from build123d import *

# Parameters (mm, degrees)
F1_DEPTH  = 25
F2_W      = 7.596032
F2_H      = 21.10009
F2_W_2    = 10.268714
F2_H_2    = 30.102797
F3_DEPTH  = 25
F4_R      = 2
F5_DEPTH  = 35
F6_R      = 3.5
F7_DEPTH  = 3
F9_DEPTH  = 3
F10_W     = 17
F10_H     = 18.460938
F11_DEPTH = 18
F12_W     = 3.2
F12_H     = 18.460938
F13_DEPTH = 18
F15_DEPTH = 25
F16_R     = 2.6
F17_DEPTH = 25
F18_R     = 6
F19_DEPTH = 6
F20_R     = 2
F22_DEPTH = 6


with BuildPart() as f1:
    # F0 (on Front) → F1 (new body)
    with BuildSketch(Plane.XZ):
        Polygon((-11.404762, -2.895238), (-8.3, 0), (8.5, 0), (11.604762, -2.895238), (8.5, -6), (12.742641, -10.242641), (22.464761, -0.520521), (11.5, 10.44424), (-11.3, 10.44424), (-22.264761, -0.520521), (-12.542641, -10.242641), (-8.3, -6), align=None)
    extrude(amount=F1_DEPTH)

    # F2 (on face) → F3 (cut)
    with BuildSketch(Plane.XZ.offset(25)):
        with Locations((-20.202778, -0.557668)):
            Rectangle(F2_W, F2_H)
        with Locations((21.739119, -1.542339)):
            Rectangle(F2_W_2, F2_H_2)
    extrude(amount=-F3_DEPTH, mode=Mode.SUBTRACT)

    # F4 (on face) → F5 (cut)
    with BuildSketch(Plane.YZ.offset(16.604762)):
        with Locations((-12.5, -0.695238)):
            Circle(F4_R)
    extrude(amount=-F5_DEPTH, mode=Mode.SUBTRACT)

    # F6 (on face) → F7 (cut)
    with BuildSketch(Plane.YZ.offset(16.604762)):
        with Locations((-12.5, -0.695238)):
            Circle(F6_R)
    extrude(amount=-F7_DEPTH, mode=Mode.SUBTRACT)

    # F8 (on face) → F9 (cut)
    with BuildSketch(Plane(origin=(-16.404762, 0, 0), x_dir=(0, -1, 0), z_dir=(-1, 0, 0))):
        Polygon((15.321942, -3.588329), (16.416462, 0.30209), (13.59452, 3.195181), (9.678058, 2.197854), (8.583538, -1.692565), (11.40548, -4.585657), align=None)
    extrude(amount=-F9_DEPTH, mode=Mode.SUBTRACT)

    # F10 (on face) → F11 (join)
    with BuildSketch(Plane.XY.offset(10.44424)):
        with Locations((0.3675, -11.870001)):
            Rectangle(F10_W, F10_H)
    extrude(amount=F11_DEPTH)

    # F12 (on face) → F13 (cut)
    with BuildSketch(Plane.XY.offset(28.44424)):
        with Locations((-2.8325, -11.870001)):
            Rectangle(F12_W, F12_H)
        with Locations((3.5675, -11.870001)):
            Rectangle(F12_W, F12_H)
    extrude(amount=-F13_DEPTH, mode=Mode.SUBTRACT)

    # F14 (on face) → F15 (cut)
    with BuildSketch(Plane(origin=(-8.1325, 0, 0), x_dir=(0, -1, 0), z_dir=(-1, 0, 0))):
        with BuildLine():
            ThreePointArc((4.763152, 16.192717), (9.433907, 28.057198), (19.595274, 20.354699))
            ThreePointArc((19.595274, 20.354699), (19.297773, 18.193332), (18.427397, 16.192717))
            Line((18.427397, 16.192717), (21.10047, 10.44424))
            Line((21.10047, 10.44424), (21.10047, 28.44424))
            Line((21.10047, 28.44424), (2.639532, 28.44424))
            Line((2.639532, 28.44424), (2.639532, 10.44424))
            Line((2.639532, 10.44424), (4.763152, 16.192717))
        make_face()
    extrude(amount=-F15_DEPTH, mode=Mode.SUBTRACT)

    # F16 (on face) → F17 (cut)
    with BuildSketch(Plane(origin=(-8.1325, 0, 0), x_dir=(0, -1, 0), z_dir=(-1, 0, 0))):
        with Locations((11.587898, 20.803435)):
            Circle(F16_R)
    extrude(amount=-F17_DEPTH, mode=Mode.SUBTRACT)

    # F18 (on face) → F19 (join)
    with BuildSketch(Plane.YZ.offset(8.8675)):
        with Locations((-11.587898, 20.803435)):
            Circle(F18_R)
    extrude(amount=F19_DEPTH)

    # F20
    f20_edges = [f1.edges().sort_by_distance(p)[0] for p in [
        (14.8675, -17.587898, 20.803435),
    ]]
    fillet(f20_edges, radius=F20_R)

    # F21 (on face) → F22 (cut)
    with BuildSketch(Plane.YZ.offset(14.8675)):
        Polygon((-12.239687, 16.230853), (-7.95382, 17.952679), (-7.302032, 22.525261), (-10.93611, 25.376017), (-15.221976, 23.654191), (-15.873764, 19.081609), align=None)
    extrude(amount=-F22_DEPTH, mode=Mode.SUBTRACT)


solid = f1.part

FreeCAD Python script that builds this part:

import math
import FreeCAD as App
import Part
import Sketcher

V = App.Vector
Q = App.Units.Quantity


def edges_at(feature, points):
    """Names of the edges that pass closest to the given points."""
    edges = feature.Shape.Edges
    near = lambda p: min(range(len(edges)), key=lambda i: edges[i].distToShape(Part.Vertex(*p))[0])
    return sorted({f"Edge{near(p) + 1}" for p in points})

doc = App.newDocument("Part")
body = doc.addObject("PartDesign::Body", "Body")

# Sketch on XZ plane
sketch1 = body.newObject("Sketcher::SketchObject", "Sketch")
sketch1.AttachmentSupport = (doc.getObject("XZ_Plane"), [""])
sketch1.MapMode = "FlatFace"
sketch1.addGeometry(Part.LineSegment(V(-11.404762, -2.895238, 0), V(-8.3, 0, 0)), False)
sketch1.addGeometry(Part.LineSegment(V(-8.3, 0, 0), V(8.5, 0, 0)), False)
sketch1.addGeometry(Part.LineSegment(V(8.5, 0, 0), V(11.604762, -2.895238, 0)), False)
sketch1.addGeometry(Part.LineSegment(V(11.604762, -2.895238, 0), V(8.5, -6, 0)), False)
sketch1.addGeometry(Part.LineSegment(V(8.5, -6, 0), V(12.742641, -10.242641, 0)), False)
sketch1.addGeometry(Part.LineSegment(V(12.742641, -10.242641, 0), V(22.464761, -0.520521, 0)), False)
sketch1.addGeometry(Part.LineSegment(V(22.464761, -0.520521, 0), V(11.5, 10.44424, 0)), False)
sketch1.addGeometry(Part.LineSegment(V(11.5, 10.44424, 0), V(-11.3, 10.44424, 0)), False)
sketch1.addGeometry(Part.LineSegment(V(-11.3, 10.44424, 0), V(-22.264761, -0.520521, 0)), False)
sketch1.addGeometry(Part.LineSegment(V(-22.264761, -0.520521, 0), V(-12.542641, -10.242641, 0)), False)
sketch1.addGeometry(Part.LineSegment(V(-12.542641, -10.242641, 0), V(-8.3, -6, 0)), False)
sketch1.addGeometry(Part.LineSegment(V(-8.3, -6, 0), V(-11.404762, -2.895238, 0)), False)
sketch1.addConstraint(Sketcher.Constraint("Coincident", 0, 2, 1, 1))
sketch1.addConstraint(Sketcher.Constraint("Coincident", 1, 2, 2, 1))
sketch1.addConstraint(Sketcher.Constraint("Coincident", 2, 2, 3, 1))
sketch1.addConstraint(Sketcher.Constraint("Coincident", 3, 2, 4, 1))
sketch1.addConstraint(Sketcher.Constraint("Coincident", 4, 2, 5, 1))
sketch1.addConstraint(Sketcher.Constraint("Coincident", 5, 2, 6, 1))
sketch1.addConstraint(Sketcher.Constraint("Coincident", 6, 2, 7, 1))
sketch1.addConstraint(Sketcher.Constraint("Coincident", 7, 2, 8, 1))
sketch1.addConstraint(Sketcher.Constraint("Coincident", 8, 2, 9, 1))
sketch1.addConstraint(Sketcher.Constraint("Coincident", 9, 2, 10, 1))
sketch1.addConstraint(Sketcher.Constraint("Coincident", 10, 2, 11, 1))
sketch1.addConstraint(Sketcher.Constraint("Coincident", 11, 2, 0, 1))
sketch1.addConstraint(Sketcher.Constraint("Horizontal", 1))
sketch1.addConstraint(Sketcher.Constraint("Horizontal", 7))
sketch1.addConstraint(Sketcher.Constraint("PointOnObject", 0, 2, -1))
sketch1.addConstraint(Sketcher.Constraint("Perpendicular", 3, 4))
sketch1.addConstraint(Sketcher.Constraint("Perpendicular", 4, 5))
sketch1.addConstraint(Sketcher.Constraint("Perpendicular", 5, 6))
sketch1.addConstraint(Sketcher.Constraint("Perpendicular", 6, 8))
sketch1.addConstraint(Sketcher.Constraint("Perpendicular", 8, 9))
sketch1.addConstraint(Sketcher.Constraint("Perpendicular", 9, 10))
sketch1.addConstraint(Sketcher.Constraint("Perpendicular", 10, 11))
sketch1.addConstraint(Sketcher.Constraint("Horizontal", 5, 2, 8, 2))
sketch1.addConstraint(Sketcher.Constraint("Horizontal", 4, 2, 9, 2))
sketch1.addConstraint(Sketcher.Constraint("Horizontal", 3, 2, 10, 2))
sketch1.addConstraint(Sketcher.Constraint("Horizontal", 2, 2, 11, 2))
sketch1.addConstraint(Sketcher.Constraint("Vertical", 1, 2, 3, 2))
sketch1.addConstraint(Sketcher.Constraint("Vertical", 0, 2, 10, 2))
sketch1.addConstraint(Sketcher.Constraint("Equal", 0, 2))
sketch1.addConstraint(Sketcher.Constraint("Angle", 0, Q("43.000006 deg")))
sketch1.addConstraint(Sketcher.Constraint("Distance", 4, 6.0))
sketch1.addConstraint(Sketcher.Constraint("DistanceX", 1, 1, 1, 2, 16.8))
sketch1.addConstraint(Sketcher.Constraint("DistanceX", 7, 2, 7, 1, 22.8))
sketch1.addConstraint(Sketcher.Constraint("DistanceY", 3, 2, -1, 1, 6.0))
sketch1.addConstraint(Sketcher.Constraint("DistanceX", 0, 2, -1, 1, 8.3))
sketch1.addConstraint(Sketcher.Constraint("DistanceX", 2, 2, 5, 2, 10.859999))
pad1 = body.newObject("PartDesign::Pad", "Pad")
pad1.Profile = sketch1
pad1.Length = 25

# Sketch on XZ plane
sketch2 = body.newObject("Sketcher::SketchObject", "Sketch001")
sketch2.AttachmentSupport = (doc.getObject("XZ_Plane"), [""])
sketch2.MapMode = "FlatFace"
sketch2.AttachmentOffset = App.Placement(V(0, 0, 25), App.Rotation())
sketch2.addGeometry(Part.LineSegment(V(-24.000794, 9.992377, 0), V(-24.000794, -11.107713, 0)), False)
sketch2.addGeometry(Part.LineSegment(V(-24.000794, -11.107713, 0), V(-16.404762, -11.107713, 0)), False)
sketch2.addGeometry(Part.LineSegment(V(-16.404762, -11.107713, 0), V(-16.404762, 9.992377, 0)), False)
sketch2.addGeometry(Part.LineSegment(V(-16.404762, 9.992377, 0), V(-24.000794, 9.992377, 0)), False)
sketch2.addGeometry(Part.LineSegment(V(16.604762, 13.509059, 0), V(16.604762, -16.593737, 0)), False)
sketch2.addGeometry(Part.LineSegment(V(16.604762, -16.593737, 0), V(26.873476, -16.593737, 0)), False)
sketch2.addGeometry(Part.LineSegment(V(26.873476, -16.593737, 0), V(26.873476, 13.509059, 0)), False)
sketch2.addGeometry(Part.LineSegment(V(26.873476, 13.509059, 0), V(16.604762, 13.509059, 0)), False)
sketch2.addConstraint(Sketcher.Constraint("Coincident", 0, 2, 1, 1))
sketch2.addConstraint(Sketcher.Constraint("Coincident", 1, 2, 2, 1))
sketch2.addConstraint(Sketcher.Constraint("Coincident", 2, 2, 3, 1))
sketch2.addConstraint(Sketcher.Constraint("Coincident", 3, 2, 0, 1))
sketch2.addConstraint(Sketcher.Constraint("Coincident", 4, 2, 5, 1))
sketch2.addConstraint(Sketcher.Constraint("Coincident", 5, 2, 6, 1))
sketch2.addConstraint(Sketcher.Constraint("Coincident", 6, 2, 7, 1))
sketch2.addConstraint(Sketcher.Constraint("Coincident", 7, 2, 4, 1))
sketch2.addConstraint(Sketcher.Constraint("Vertical", 0))
sketch2.addConstraint(Sketcher.Constraint("Horizontal", 1))
sketch2.addConstraint(Sketcher.Constraint("Vertical", 2))
sketch2.addConstraint(Sketcher.Constraint("Horizontal", 3))
sketch2.addConstraint(Sketcher.Constraint("Vertical", 4))
sketch2.addConstraint(Sketcher.Constraint("Horizontal", 5))
sketch2.addConstraint(Sketcher.Constraint("Vertical", 6))
sketch2.addConstraint(Sketcher.Constraint("Horizontal", 7))
sketch2.addConstraint(Sketcher.Constraint("DistanceX", 1, 1, 1, 2, 7.596032))
sketch2.addConstraint(Sketcher.Constraint("DistanceY", 0, 2, 0, 1, 21.10009))
sketch2.addConstraint(Sketcher.Constraint("DistanceX", 5, 1, 5, 2, 10.268714))
sketch2.addConstraint(Sketcher.Constraint("DistanceY", 4, 2, 4, 1, 30.102797))
sketch2.addConstraint(Sketcher.Constraint("DistanceY", -1, 1, 6, 2, 13.509059))
sketch2.addConstraint(Sketcher.Constraint("DistanceX", 1, 2, 5, 2, 43.278238))
sketch2.addConstraint(Sketcher.Constraint("DistanceX", 0, 2, -1, 1, 24.000794))
sketch2.addConstraint(Sketcher.Constraint("DistanceY", 0, 2, -1, 1, 11.107713))
pocket1 = body.newObject("PartDesign::Pocket", "Pocket")
pocket1.Profile = sketch2
pocket1.Length = 25

# Sketch on YZ plane
sketch3 = body.newObject("Sketcher::SketchObject", "Sketch002")
sketch3.AttachmentSupport = (doc.getObject("YZ_Plane"), [""])
sketch3.MapMode = "FlatFace"
sketch3.AttachmentOffset = App.Placement(V(0, 0, 16.604762), App.Rotation())
sketch3.addGeometry(Part.Circle(V(-12.5, -0.695238, 0), V(0, 0, 1), 2), False)
sketch3.addConstraint(Sketcher.Constraint("Diameter", 0, 4.0))
sketch3.addConstraint(Sketcher.Constraint("DistanceX", 0, 3, -1, 1, 12.5))
sketch3.addConstraint(Sketcher.Constraint("DistanceY", 0, 3, -1, 1, 0.695238))
pocket2 = body.newObject("PartDesign::Pocket", "Pocket001")
pocket2.Profile = sketch3
pocket2.Length = 35

# Sketch on YZ plane
sketch4 = body.newObject("Sketcher::SketchObject", "Sketch003")
sketch4.AttachmentSupport = (doc.getObject("YZ_Plane"), [""])
sketch4.MapMode = "FlatFace"
sketch4.AttachmentOffset = App.Placement(V(0, 0, 16.604762), App.Rotation())
sketch4.addGeometry(Part.Circle(V(-12.5, -0.695238, 0), V(0, 0, 1), 3.5), False)
sketch4.addConstraint(Sketcher.Constraint("Diameter", 0, 7.0))
sketch4.addConstraint(Sketcher.Constraint("DistanceX", 0, 3, -1, 1, 12.5))
sketch4.addConstraint(Sketcher.Constraint("DistanceY", 0, 3, -1, 1, 0.695238))
pocket3 = body.newObject("PartDesign::Pocket", "Pocket002")
pocket3.Profile = sketch4
pocket3.Length = 3

# Sketch on YZ plane
sketch5 = body.newObject("Sketcher::SketchObject", "Sketch004")
sketch5.AttachmentSupport = (doc.getObject("YZ_Plane"), [""])
sketch5.MapMode = "FlatFace"
sketch5.AttachmentOffset = App.Placement(V(0, 0, -16.404762), App.Rotation())
sketch5.addGeometry(Part.LineSegment(V(-15.321942, -3.588329, 0), V(-16.416462, 0.30209, 0)), False)
sketch5.addGeometry(Part.LineSegment(V(-16.416462, 0.30209, 0), V(-13.59452, 3.195181, 0)), False)
sketch5.addGeometry(Part.LineSegment(V(-13.59452, 3.195181, 0), V(-9.678058, 2.197854, 0)), False)
sketch5.addGeometry(Part.LineSegment(V(-9.678058, 2.197854, 0), V(-8.583538, -1.692565, 0)), False)
sketch5.addGeometry(Part.LineSegment(V(-8.583538, -1.692565, 0), V(-11.40548, -4.585657, 0)), False)
sketch5.addGeometry(Part.LineSegment(V(-11.40548, -4.585657, 0), V(-15.321942, -3.588329, 0)), False)
sketch5.addConstraint(Sketcher.Constraint("Coincident", 0, 2, 1, 1))
sketch5.addConstraint(Sketcher.Constraint("Coincident", 1, 2, 2, 1))
sketch5.addConstraint(Sketcher.Constraint("Coincident", 2, 2, 3, 1))
sketch5.addConstraint(Sketcher.Constraint("Coincident", 3, 2, 4, 1))
sketch5.addConstraint(Sketcher.Constraint("Coincident", 4, 2, 5, 1))
sketch5.addConstraint(Sketcher.Constraint("Coincident", 5, 2, 0, 1))
sketch5.addConstraint(Sketcher.Constraint("Parallel", 0, 3))
sketch5.addConstraint(Sketcher.Constraint("Parallel", 1, 4))
sketch5.addConstraint(Sketcher.Constraint("Parallel", 2, 5))
sketch5.addConstraint(Sketcher.Constraint("Equal", 0, 1))
sketch5.addConstraint(Sketcher.Constraint("Equal", 1, 2))
sketch5.addConstraint(Sketcher.Constraint("Equal", 2, 3))
sketch5.addConstraint(Sketcher.Constraint("Distance", 0, 4.041452))
sketch5.addConstraint(Sketcher.Constraint("DistanceX", 0, 2, -1, 1, 16.416462))
sketch5.addConstraint(Sketcher.Constraint("DistanceY", -1, 1, 0, 2, 0.30209))
sketch5.addConstraint(Sketcher.Constraint("DistanceX", 1, 2, -1, 1, 13.59452))
sketch5.addConstraint(Sketcher.Constraint("DistanceX", 3, 2, -1, 1, 8.583538))
sketch5.addConstraint(Sketcher.Constraint("DistanceY", 5, 2, -1, 1, 3.588329))
pocket4 = body.newObject("PartDesign::Pocket", "Pocket003")
pocket4.Profile = sketch5
pocket4.Length = 3
pocket4.Reversed = True

# Sketch on XY plane
sketch6 = body.newObject("Sketcher::SketchObject", "Sketch005")
sketch6.AttachmentSupport = (doc.getObject("XY_Plane"), [""])
sketch6.MapMode = "FlatFace"
sketch6.AttachmentOffset = App.Placement(V(0, 0, 10.44424), App.Rotation())
sketch6.addGeometry(Part.LineSegment(V(-8.1325, -2.639532, 0), V(-8.1325, -21.10047, 0)), False)
sketch6.addGeometry(Part.LineSegment(V(-8.1325, -21.10047, 0), V(8.8675, -21.10047, 0)), False)
sketch6.addGeometry(Part.LineSegment(V(8.8675, -21.10047, 0), V(8.8675, -2.639532, 0)), False)
sketch6.addGeometry(Part.LineSegment(V(8.8675, -2.639532, 0), V(-8.1325, -2.639532, 0)), False)
sketch6.addConstraint(Sketcher.Constraint("Coincident", 0, 2, 1, 1))
sketch6.addConstraint(Sketcher.Constraint("Coincident", 1, 2, 2, 1))
sketch6.addConstraint(Sketcher.Constraint("Coincident", 2, 2, 3, 1))
sketch6.addConstraint(Sketcher.Constraint("Coincident", 3, 2, 0, 1))
sketch6.addConstraint(Sketcher.Constraint("Vertical", 0))
sketch6.addConstraint(Sketcher.Constraint("Horizontal", 1))
sketch6.addConstraint(Sketcher.Constraint("Vertical", 2))
sketch6.addConstraint(Sketcher.Constraint("Horizontal", 3))
sketch6.addConstraint(Sketcher.Constraint("DistanceX", 1, 1, 1, 2, 17.0))
sketch6.addConstraint(Sketcher.Constraint("DistanceY", 0, 2, 0, 1, 18.460938))
sketch6.addConstraint(Sketcher.Constraint("DistanceX", 0, 2, -1, 1, 8.1325))
sketch6.addConstraint(Sketcher.Constraint("DistanceY", 0, 2, -1, 1, 21.10047))
pad2 = body.newObject("PartDesign::Pad", "Pad001")
pad2.Profile = sketch6
pad2.Length = 18

# Sketch on XY plane
sketch7 = body.newObject("Sketcher::SketchObject", "Sketch006")
sketch7.AttachmentSupport = (doc.getObject("XY_Plane"), [""])
sketch7.MapMode = "FlatFace"
sketch7.AttachmentOffset = App.Placement(V(0, 0, 28.44424), App.Rotation())
sketch7.addGeometry(Part.LineSegment(V(-4.4325, -2.639532, 0), V(-4.4325, -21.10047, 0)), False)
sketch7.addGeometry(Part.LineSegment(V(-4.4325, -21.10047, 0), V(-1.2325, -21.10047, 0)), False)
sketch7.addGeometry(Part.LineSegment(V(-1.2325, -21.10047, 0), V(-1.2325, -2.639532, 0)), False)
sketch7.addGeometry(Part.LineSegment(V(-1.2325, -2.639532, 0), V(-4.4325, -2.639532, 0)), False)
sketch7.addGeometry(Part.LineSegment(V(1.9675, -2.639532, 0), V(1.9675, -21.10047, 0)), False)
sketch7.addGeometry(Part.LineSegment(V(1.9675, -21.10047, 0), V(5.1675, -21.10047, 0)), False)
sketch7.addGeometry(Part.LineSegment(V(5.1675, -21.10047, 0), V(5.1675, -2.639532, 0)), False)
sketch7.addGeometry(Part.LineSegment(V(5.1675, -2.639532, 0), V(1.9675, -2.639532, 0)), False)
sketch7.addConstraint(Sketcher.Constraint("Coincident", 0, 2, 1, 1))
sketch7.addConstraint(Sketcher.Constraint("Coincident", 1, 2, 2, 1))
sketch7.addConstraint(Sketcher.Constraint("Coincident", 2, 2, 3, 1))
sketch7.addConstraint(Sketcher.Constraint("Coincident", 3, 2, 0, 1))
sketch7.addConstraint(Sketcher.Constraint("Coincident", 4, 2, 5, 1))
sketch7.addConstraint(Sketcher.Constraint("Coincident", 5, 2, 6, 1))
sketch7.addConstraint(Sketcher.Constraint("Coincident", 6, 2, 7, 1))
sketch7.addConstraint(Sketcher.Constraint("Coincident", 7, 2, 4, 1))
sketch7.addConstraint(Sketcher.Constraint("Vertical", 0))
sketch7.addConstraint(Sketcher.Constraint("Horizontal", 1))
sketch7.addConstraint(Sketcher.Constraint("Vertical", 2))
sketch7.addConstraint(Sketcher.Constraint("Horizontal", 3))
sketch7.addConstraint(Sketcher.Constraint("Vertical", 4))
sketch7.addConstraint(Sketcher.Constraint("Horizontal", 5))
sketch7.addConstraint(Sketcher.Constraint("Vertical", 6))
sketch7.addConstraint(Sketcher.Constraint("Horizontal", 7))
sketch7.addConstraint(Sketcher.Constraint("Horizontal", 1, 2, 4, 2))
sketch7.addConstraint(Sketcher.Constraint("Horizontal", 3, 2, 6, 2))
sketch7.addConstraint(Sketcher.Constraint("Equal", 3, 5))
sketch7.addConstraint(Sketcher.Constraint("DistanceX", 1, 1, 1, 2, 3.2))
sketch7.addConstraint(Sketcher.Constraint("DistanceX", 1, 2, 4, 2, 3.2))
sketch7.addConstraint(Sketcher.Constraint("DistanceY", 0, 2, 0, 1, 18.460938))
sketch7.addConstraint(Sketcher.Constraint("DistanceX", 0, 2, -1, 1, 4.4325))
sketch7.addConstraint(Sketcher.Constraint("DistanceY", 0, 2, -1, 1, 21.10047))
pocket5 = body.newObject("PartDesign::Pocket", "Pocket004")
pocket5.Profile = sketch7
pocket5.Length = 18

# Sketch on YZ plane
sketch8 = body.newObject("Sketcher::SketchObject", "Sketch007")
sketch8.AttachmentSupport = (doc.getObject("YZ_Plane"), [""])
sketch8.MapMode = "FlatFace"
sketch8.AttachmentOffset = App.Placement(V(0, 0, -8.1325), App.Rotation())
sketch8.addGeometry(Part.ArcOfCircle(Part.Circle(V(-11.595274, 20.354699, 0), V(0, 0, 1), 8), math.radians(-31.348877), math.radians(180.000003)), False)
sketch8.addGeometry(Part.ArcOfCircle(Part.Circle(V(-11.595272, 20.3547, 0), V(0, 0, 1), 8.000002), math.radians(-179.999995), math.radians(-148.651131)), False)
sketch8.addGeometry(Part.LineSegment(V(-18.427397, 16.192717, 0), V(-21.10047, 10.44424, 0)), False)
sketch8.addGeometry(Part.LineSegment(V(-21.10047, 10.44424, 0), V(-21.10047, 28.44424, 0)), False)
sketch8.addGeometry(Part.LineSegment(V(-21.10047, 28.44424, 0), V(-2.639532, 28.44424, 0)), False)
sketch8.addGeometry(Part.LineSegment(V(-2.639532, 28.44424, 0), V(-2.639532, 10.44424, 0)), False)
sketch8.addGeometry(Part.LineSegment(V(-2.639532, 10.44424, 0), V(-4.763152, 16.192717, 0)), False)
sketch8.addConstraint(Sketcher.Constraint("Tangent", 0, 2, 1, 1))
sketch8.addConstraint(Sketcher.Constraint("Coincident", 1, 2, 2, 1))
sketch8.addConstraint(Sketcher.Constraint("Coincident", 2, 2, 3, 1))
sketch8.addConstraint(Sketcher.Constraint("Coincident", 3, 2, 4, 1))
sketch8.addConstraint(Sketcher.Constraint("Coincident", 4, 2, 5, 1))
sketch8.addConstraint(Sketcher.Constraint("Coincident", 5, 2, 6, 1))
sketch8.addConstraint(Sketcher.Constraint("Coincident", 6, 2, 0, 1))
sketch8.addConstraint(Sketcher.Constraint("Vertical", 3))
sketch8.addConstraint(Sketcher.Constraint("Horizontal", 4))
sketch8.addConstraint(Sketcher.Constraint("Vertical", 5))
sketch8.addConstraint(Sketcher.Constraint("Horizontal", 1, 3, 0, 2))
sketch8.addConstraint(Sketcher.Constraint("Horizontal", 2, 2, 5, 2))
sketch8.addConstraint(Sketcher.Constraint("Horizontal", 1, 2, 6, 2))
sketch8.addConstraint(Sketcher.Constraint("Radius", 0, 8.0))
sketch8.addConstraint(Sketcher.Constraint("DistanceY", 3, 1, 3, 2, 18.0))
sketch8.addConstraint(Sketcher.Constraint("Radius", 1, 8.000002))
sketch8.addConstraint(Sketcher.Constraint("DistanceX", 4, 1, 4, 2, 18.460938))
sketch8.addConstraint(Sketcher.Constraint("DistanceY", -1, 1, 0, 3, 20.354699))
sketch8.addConstraint(Sketcher.Constraint("DistanceX", 2, 2, 1, 3, 9.505198))
sketch8.addConstraint(Sketcher.Constraint("DistanceX", 1, 3, -1, 1, 11.595272))
sketch8.addConstraint(Sketcher.Constraint("DistanceY", -1, 1, 2, 2, 10.44424))
sketch8.addConstraint(Sketcher.Constraint("DistanceX", 6, 2, -1, 1, 4.763152))
pocket6 = body.newObject("PartDesign::Pocket", "Pocket005")
pocket6.Profile = sketch8
pocket6.Length = 25
pocket6.Reversed = True

# Sketch on YZ plane
sketch9 = body.newObject("Sketcher::SketchObject", "Sketch008")
sketch9.AttachmentSupport = (doc.getObject("YZ_Plane"), [""])
sketch9.MapMode = "FlatFace"
sketch9.AttachmentOffset = App.Placement(V(0, 0, -8.1325), App.Rotation())
sketch9.addGeometry(Part.Circle(V(-11.587898, 20.803435, 0), V(0, 0, 1), 2.6), False)
sketch9.addConstraint(Sketcher.Constraint("Diameter", 0, 5.2))
sketch9.addConstraint(Sketcher.Constraint("DistanceX", 0, 3, -1, 1, 11.587898))
sketch9.addConstraint(Sketcher.Constraint("DistanceY", -1, 1, 0, 3, 20.803435))
pocket7 = body.newObject("PartDesign::Pocket", "Pocket006")
pocket7.Profile = sketch9
pocket7.Length = 25
pocket7.Reversed = True

# Sketch on YZ plane
sketch10 = body.newObject("Sketcher::SketchObject", "Sketch009")
sketch10.AttachmentSupport = (doc.getObject("YZ_Plane"), [""])
sketch10.MapMode = "FlatFace"
sketch10.AttachmentOffset = App.Placement(V(0, 0, 8.8675), App.Rotation())
sketch10.addGeometry(Part.Circle(V(-11.587898, 20.803435, 0), V(0, 0, 1), 6), False)
sketch10.addConstraint(Sketcher.Constraint("Diameter", 0, 12.0))
sketch10.addConstraint(Sketcher.Constraint("DistanceX", 0, 3, -1, 1, 11.587898))
sketch10.addConstraint(Sketcher.Constraint("DistanceY", -1, 1, 0, 3, 20.803435))
pad3 = body.newObject("PartDesign::Pad", "Pad002")
pad3.Profile = sketch10
pad3.Length = 6
doc.recompute()

fillet = body.newObject("PartDesign::Fillet", "Fillet")
fillet.Base = (pad3, edges_at(pad3, [(14.867, -17.588, 20.803)]))
fillet.Radius = 2

# Sketch on YZ plane
sketch11 = body.newObject("Sketcher::SketchObject", "Sketch010")
sketch11.AttachmentSupport = (doc.getObject("YZ_Plane"), [""])
sketch11.MapMode = "FlatFace"
sketch11.AttachmentOffset = App.Placement(V(0, 0, 14.8675), App.Rotation())
sketch11.addGeometry(Part.LineSegment(V(-12.239687, 16.230853, 0), V(-7.95382, 17.952679, 0)), False)
sketch11.addGeometry(Part.LineSegment(V(-7.95382, 17.952679, 0), V(-7.302032, 22.525261, 0)), False)
sketch11.addGeometry(Part.LineSegment(V(-7.302032, 22.525261, 0), V(-10.93611, 25.376017, 0)), False)
sketch11.addGeometry(Part.LineSegment(V(-10.93611, 25.376017, 0), V(-15.221976, 23.654191, 0)), False)
sketch11.addGeometry(Part.LineSegment(V(-15.221976, 23.654191, 0), V(-15.873764, 19.081609, 0)), False)
sketch11.addGeometry(Part.LineSegment(V(-15.873764, 19.081609, 0), V(-12.239687, 16.230853, 0)), False)
sketch11.addConstraint(Sketcher.Constraint("Coincident", 0, 2, 1, 1))
sketch11.addConstraint(Sketcher.Constraint("Coincident", 1, 2, 2, 1))
sketch11.addConstraint(Sketcher.Constraint("Coincident", 2, 2, 3, 1))
sketch11.addConstraint(Sketcher.Constraint("Coincident", 3, 2, 4, 1))
sketch11.addConstraint(Sketcher.Constraint("Coincident", 4, 2, 5, 1))
sketch11.addConstraint(Sketcher.Constraint("Coincident", 5, 2, 0, 1))
sketch11.addConstraint(Sketcher.Constraint("Parallel", 0, 3))
sketch11.addConstraint(Sketcher.Constraint("Parallel", 1, 4))
sketch11.addConstraint(Sketcher.Constraint("Parallel", 2, 5))
sketch11.addConstraint(Sketcher.Constraint("Equal", 0, 1))
sketch11.addConstraint(Sketcher.Constraint("Equal", 1, 2))
sketch11.addConstraint(Sketcher.Constraint("Equal", 2, 3))
sketch11.addConstraint(Sketcher.Constraint("Distance", 5, 4.618801))
sketch11.addConstraint(Sketcher.Constraint("DistanceX", 0, 2, -1, 1, 7.95382))
sketch11.addConstraint(Sketcher.Constraint("DistanceY", -1, 1, 0, 2, 17.952679))
sketch11.addConstraint(Sketcher.Constraint("DistanceX", 1, 2, -1, 1, 7.302032))
sketch11.addConstraint(Sketcher.Constraint("DistanceX", 2, 2, -1, 1, 10.93611))
sketch11.addConstraint(Sketcher.Constraint("DistanceY", -1, 1, 3, 2, 23.654191))
pocket8 = body.newObject("PartDesign::Pocket", "Pocket007")
pocket8.Profile = sketch11
pocket8.Length = 6

doc.recompute()
